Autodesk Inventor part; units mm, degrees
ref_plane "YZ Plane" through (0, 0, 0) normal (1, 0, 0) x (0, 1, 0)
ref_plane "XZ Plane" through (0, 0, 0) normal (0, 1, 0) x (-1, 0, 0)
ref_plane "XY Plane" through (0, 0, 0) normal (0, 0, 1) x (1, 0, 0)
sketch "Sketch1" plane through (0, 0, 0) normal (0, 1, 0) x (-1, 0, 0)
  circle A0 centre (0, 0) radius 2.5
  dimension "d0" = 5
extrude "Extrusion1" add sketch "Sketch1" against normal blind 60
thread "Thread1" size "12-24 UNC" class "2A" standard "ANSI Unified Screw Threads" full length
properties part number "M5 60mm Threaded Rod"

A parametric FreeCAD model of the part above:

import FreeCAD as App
import Part
import Sketcher
from FreeCAD import Vector
Q = App.Units.Quantity

doc = App.newDocument("Part")
body = doc.addObject("PartDesign::Body", "Body")

# Sketch on XZ plane
sketch1 = body.newObject("Sketcher::SketchObject", "Sketch")
sketch1.AttachmentSupport = (doc.getObject("XZ_Plane"), [""])
sketch1.MapMode = "FlatFace"
sketch1.addGeometry(Part.Circle(Vector(0, 0, 0), Vector(0, 0, 1), 2.5), False)
sketch1.addConstraint([
    Sketcher.Constraint("Coincident", 0, 3, -1, 1),
    Sketcher.Constraint("Diameter", 0, Q("5 mm")),
])
pad1 = body.newObject("PartDesign::Pad", "Pad")
pad1.Profile = sketch1
pad1.Length = 60

doc.recompute()
